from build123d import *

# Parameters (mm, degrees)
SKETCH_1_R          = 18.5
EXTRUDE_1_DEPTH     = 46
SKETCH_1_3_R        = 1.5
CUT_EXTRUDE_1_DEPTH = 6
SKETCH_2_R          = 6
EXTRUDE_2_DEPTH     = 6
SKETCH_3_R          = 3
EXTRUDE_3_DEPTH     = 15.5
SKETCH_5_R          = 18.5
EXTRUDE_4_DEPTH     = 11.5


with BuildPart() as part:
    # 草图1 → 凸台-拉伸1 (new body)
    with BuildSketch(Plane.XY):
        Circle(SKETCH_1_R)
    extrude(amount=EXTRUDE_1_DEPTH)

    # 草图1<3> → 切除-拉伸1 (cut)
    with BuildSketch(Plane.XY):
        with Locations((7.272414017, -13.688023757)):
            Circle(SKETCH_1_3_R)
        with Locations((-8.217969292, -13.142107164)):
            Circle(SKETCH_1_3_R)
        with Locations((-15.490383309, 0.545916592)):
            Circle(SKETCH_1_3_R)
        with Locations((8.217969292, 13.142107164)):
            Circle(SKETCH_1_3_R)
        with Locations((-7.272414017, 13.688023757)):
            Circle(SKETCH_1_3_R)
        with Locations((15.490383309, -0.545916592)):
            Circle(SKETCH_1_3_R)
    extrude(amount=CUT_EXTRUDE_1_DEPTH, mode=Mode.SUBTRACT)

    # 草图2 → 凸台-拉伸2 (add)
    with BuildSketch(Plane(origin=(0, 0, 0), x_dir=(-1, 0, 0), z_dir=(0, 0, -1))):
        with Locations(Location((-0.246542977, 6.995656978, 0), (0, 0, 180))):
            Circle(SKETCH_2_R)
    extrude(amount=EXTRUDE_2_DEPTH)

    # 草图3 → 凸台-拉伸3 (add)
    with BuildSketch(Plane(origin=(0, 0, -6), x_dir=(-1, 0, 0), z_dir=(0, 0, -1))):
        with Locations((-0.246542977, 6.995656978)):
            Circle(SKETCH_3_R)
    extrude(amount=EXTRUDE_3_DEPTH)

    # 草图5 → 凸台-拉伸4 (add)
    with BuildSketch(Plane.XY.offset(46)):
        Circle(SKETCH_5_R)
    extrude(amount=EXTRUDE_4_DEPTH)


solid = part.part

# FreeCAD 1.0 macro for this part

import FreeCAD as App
import Part
import Sketcher

V = App.Vector

doc = App.newDocument("Part")
body = doc.addObject("PartDesign::Body", "Body")

# Sketch on XY plane
sketch1 = body.newObject("Sketcher::SketchObject", "Sketch")
sketch1.AttachmentSupport = (doc.getObject("XY_Plane"), [""])
sketch1.MapMode = "FlatFace"
sketch1.addGeometry(Part.Circle(V(0, 0, 0), V(0, 0, 1), 18.5), False)
sketch1.addConstraint(Sketcher.Constraint("Coincident", 0, 3, -1, 1))
sketch1.addConstraint(Sketcher.Constraint("Diameter", 0, 37.0))
pad1 = body.newObject("PartDesign::Pad", "Pad")
pad1.Profile = sketch1
pad1.Length = 46

# Sketch on XY plane
sketch2 = body.newObject("Sketcher::SketchObject", "Sketch001")
sketch2.AttachmentSupport = (doc.getObject("XY_Plane"), [""])
sketch2.MapMode = "FlatFace"
sketch2.addGeometry(Part.Circle(V(7.272414, -13.688024, 0), V(0, 0, 1), 1.5), False)
sketch2.addGeometry(Part.Circle(V(-8.217969, -13.142107, 0), V(0, 0, 1), 1.5), False)
sketch2.addGeometry(Part.Circle(V(-15.490383, 0.545917, 0), V(0, 0, 1), 1.5), False)
sketch2.addGeometry(Part.Circle(V(8.217969, 13.142107, 0), V(0, 0, 1), 1.5), False)
sketch2.addGeometry(Part.Circle(V(-7.272414, 13.688024, 0), V(0, 0, 1), 1.5), False)
sketch2.addGeometry(Part.Circle(V(15.490383, -0.545917, 0), V(0, 0, 1), 1.5), False)
sketch2.addConstraint(Sketcher.Constraint("Equal", 0, 1))
sketch2.addConstraint(Sketcher.Constraint("Equal", 1, 2))
sketch2.addConstraint(Sketcher.Constraint("Equal", 2, 3))
sketch2.addConstraint(Sketcher.Constraint("Equal", 3, 4))
sketch2.addConstraint(Sketcher.Constraint("Equal", 4, 5))
sketch2.addConstraint(Sketcher.Constraint("Symmetric", 1, 3, 3, 3, -1, 1))
sketch2.addConstraint(Sketcher.Constraint("Symmetric", 0, 3, 4, 3, -1, 1))
sketch2.addConstraint(Sketcher.Constraint("Symmetric", 2, 3, 5, 3, -1, 1))
sketch2.addConstraint(Sketcher.Constraint("Diameter", 0, 3.0))
sketch2.addConstraint(Sketcher.Constraint("DistanceX", 1, 3, -1, 1, 8.217969))
sketch2.addConstraint(Sketcher.Constraint("DistanceY", 0, 3, 2, 3, 14.23394))
sketch2.addConstraint(Sketcher.Constraint("DistanceY", 2, 3, 3, 3, 12.596191))
sketch2.addConstraint(Sketcher.Constraint("DistanceX", 2, 3, 4, 3, 8.217969))
sketch2.addConstraint(Sketcher.Constraint("DistanceX", 4, 3, 0, 3, 14.544828))
sketch2.addConstraint(Sketcher.Constraint("DistanceY", 0, 3, -1, 1, 13.688024))
pocket1 = body.newObject("PartDesign::Pocket", "Pocket")
pocket1.Profile = sketch2
pocket1.Length = 6
pocket1.Reversed = True

# Sketch on XY plane
sketch3 = body.newObject("Sketcher::SketchObject", "Sketch002")
sketch3.AttachmentSupport = (doc.getObject("XY_Plane"), [""])
sketch3.MapMode = "FlatFace"
sketch3.addGeometry(Part.Circle(V(0.246543, 6.995657, 0), V(0, 0, 1), 6), False)
sketch3.addConstraint(Sketcher.Constraint("Diameter", 0, 12.0))
sketch3.addConstraint(Sketcher.Constraint("DistanceX", -1, 1, 0, 3, 0.246543))
sketch3.addConstraint(Sketcher.Constraint("DistanceY", -1, 1, 0, 3, 6.995657))
pad2 = body.newObject("PartDesign::Pad", "Pad001")
pad2.Profile = sketch3
pad2.Length = 6
pad2.Reversed = True

# Sketch on XY plane
sketch4 = body.newObject("Sketcher::SketchObject", "Sketch003")
sketch4.AttachmentSupport = (doc.getObject("XY_Plane"), [""])
sketch4.MapMode = "FlatFace"
sketch4.AttachmentOffset = App.Placement(V(0, 0, -6), App.Rotation())
sketch4.addGeometry(Part.Circle(V(0.246543, 6.995657, 0), V(0, 0, 1), 3), False)
sketch4.addConstraint(Sketcher.Constraint("Diameter", 0, 6.0))
sketch4.addConstraint(Sketcher.Constraint("DistanceX", -1, 1, 0, 3, 0.246543))
sketch4.addConstraint(Sketcher.Constraint("DistanceY", -1, 1, 0, 3, 6.995657))
pad3 = body.newObject("PartDesign::Pad", "Pad002")
pad3.Profile = sketch4
pad3.Length = 15.5
pad3.Reversed = True

# Sketch on XY plane
sketch5 = body.newObject("Sketcher::SketchObject", "Sketch004")
sketch5.AttachmentSupport = (doc.getObject("XY_Plane"), [""])
sketch5.MapMode = "FlatFace"
sketch5.AttachmentOffset = App.Placement(V(0, 0, 46), App.Rotation())
sketch5.addGeometry(Part.Circle(V(0, 0, 0), V(0, 0, 1), 18.5), False)
sketch5.addConstraint(Sketcher.Constraint("Coincident", 0, 3, -1, 1))
sketch5.addConstraint(Sketcher.Constraint("Diameter", 0, 37.0))
pad4 = body.newObject("PartDesign::Pad", "Pad003")
pad4.Profile = sketch5
pad4.Length = 11.5

doc.recompute()
